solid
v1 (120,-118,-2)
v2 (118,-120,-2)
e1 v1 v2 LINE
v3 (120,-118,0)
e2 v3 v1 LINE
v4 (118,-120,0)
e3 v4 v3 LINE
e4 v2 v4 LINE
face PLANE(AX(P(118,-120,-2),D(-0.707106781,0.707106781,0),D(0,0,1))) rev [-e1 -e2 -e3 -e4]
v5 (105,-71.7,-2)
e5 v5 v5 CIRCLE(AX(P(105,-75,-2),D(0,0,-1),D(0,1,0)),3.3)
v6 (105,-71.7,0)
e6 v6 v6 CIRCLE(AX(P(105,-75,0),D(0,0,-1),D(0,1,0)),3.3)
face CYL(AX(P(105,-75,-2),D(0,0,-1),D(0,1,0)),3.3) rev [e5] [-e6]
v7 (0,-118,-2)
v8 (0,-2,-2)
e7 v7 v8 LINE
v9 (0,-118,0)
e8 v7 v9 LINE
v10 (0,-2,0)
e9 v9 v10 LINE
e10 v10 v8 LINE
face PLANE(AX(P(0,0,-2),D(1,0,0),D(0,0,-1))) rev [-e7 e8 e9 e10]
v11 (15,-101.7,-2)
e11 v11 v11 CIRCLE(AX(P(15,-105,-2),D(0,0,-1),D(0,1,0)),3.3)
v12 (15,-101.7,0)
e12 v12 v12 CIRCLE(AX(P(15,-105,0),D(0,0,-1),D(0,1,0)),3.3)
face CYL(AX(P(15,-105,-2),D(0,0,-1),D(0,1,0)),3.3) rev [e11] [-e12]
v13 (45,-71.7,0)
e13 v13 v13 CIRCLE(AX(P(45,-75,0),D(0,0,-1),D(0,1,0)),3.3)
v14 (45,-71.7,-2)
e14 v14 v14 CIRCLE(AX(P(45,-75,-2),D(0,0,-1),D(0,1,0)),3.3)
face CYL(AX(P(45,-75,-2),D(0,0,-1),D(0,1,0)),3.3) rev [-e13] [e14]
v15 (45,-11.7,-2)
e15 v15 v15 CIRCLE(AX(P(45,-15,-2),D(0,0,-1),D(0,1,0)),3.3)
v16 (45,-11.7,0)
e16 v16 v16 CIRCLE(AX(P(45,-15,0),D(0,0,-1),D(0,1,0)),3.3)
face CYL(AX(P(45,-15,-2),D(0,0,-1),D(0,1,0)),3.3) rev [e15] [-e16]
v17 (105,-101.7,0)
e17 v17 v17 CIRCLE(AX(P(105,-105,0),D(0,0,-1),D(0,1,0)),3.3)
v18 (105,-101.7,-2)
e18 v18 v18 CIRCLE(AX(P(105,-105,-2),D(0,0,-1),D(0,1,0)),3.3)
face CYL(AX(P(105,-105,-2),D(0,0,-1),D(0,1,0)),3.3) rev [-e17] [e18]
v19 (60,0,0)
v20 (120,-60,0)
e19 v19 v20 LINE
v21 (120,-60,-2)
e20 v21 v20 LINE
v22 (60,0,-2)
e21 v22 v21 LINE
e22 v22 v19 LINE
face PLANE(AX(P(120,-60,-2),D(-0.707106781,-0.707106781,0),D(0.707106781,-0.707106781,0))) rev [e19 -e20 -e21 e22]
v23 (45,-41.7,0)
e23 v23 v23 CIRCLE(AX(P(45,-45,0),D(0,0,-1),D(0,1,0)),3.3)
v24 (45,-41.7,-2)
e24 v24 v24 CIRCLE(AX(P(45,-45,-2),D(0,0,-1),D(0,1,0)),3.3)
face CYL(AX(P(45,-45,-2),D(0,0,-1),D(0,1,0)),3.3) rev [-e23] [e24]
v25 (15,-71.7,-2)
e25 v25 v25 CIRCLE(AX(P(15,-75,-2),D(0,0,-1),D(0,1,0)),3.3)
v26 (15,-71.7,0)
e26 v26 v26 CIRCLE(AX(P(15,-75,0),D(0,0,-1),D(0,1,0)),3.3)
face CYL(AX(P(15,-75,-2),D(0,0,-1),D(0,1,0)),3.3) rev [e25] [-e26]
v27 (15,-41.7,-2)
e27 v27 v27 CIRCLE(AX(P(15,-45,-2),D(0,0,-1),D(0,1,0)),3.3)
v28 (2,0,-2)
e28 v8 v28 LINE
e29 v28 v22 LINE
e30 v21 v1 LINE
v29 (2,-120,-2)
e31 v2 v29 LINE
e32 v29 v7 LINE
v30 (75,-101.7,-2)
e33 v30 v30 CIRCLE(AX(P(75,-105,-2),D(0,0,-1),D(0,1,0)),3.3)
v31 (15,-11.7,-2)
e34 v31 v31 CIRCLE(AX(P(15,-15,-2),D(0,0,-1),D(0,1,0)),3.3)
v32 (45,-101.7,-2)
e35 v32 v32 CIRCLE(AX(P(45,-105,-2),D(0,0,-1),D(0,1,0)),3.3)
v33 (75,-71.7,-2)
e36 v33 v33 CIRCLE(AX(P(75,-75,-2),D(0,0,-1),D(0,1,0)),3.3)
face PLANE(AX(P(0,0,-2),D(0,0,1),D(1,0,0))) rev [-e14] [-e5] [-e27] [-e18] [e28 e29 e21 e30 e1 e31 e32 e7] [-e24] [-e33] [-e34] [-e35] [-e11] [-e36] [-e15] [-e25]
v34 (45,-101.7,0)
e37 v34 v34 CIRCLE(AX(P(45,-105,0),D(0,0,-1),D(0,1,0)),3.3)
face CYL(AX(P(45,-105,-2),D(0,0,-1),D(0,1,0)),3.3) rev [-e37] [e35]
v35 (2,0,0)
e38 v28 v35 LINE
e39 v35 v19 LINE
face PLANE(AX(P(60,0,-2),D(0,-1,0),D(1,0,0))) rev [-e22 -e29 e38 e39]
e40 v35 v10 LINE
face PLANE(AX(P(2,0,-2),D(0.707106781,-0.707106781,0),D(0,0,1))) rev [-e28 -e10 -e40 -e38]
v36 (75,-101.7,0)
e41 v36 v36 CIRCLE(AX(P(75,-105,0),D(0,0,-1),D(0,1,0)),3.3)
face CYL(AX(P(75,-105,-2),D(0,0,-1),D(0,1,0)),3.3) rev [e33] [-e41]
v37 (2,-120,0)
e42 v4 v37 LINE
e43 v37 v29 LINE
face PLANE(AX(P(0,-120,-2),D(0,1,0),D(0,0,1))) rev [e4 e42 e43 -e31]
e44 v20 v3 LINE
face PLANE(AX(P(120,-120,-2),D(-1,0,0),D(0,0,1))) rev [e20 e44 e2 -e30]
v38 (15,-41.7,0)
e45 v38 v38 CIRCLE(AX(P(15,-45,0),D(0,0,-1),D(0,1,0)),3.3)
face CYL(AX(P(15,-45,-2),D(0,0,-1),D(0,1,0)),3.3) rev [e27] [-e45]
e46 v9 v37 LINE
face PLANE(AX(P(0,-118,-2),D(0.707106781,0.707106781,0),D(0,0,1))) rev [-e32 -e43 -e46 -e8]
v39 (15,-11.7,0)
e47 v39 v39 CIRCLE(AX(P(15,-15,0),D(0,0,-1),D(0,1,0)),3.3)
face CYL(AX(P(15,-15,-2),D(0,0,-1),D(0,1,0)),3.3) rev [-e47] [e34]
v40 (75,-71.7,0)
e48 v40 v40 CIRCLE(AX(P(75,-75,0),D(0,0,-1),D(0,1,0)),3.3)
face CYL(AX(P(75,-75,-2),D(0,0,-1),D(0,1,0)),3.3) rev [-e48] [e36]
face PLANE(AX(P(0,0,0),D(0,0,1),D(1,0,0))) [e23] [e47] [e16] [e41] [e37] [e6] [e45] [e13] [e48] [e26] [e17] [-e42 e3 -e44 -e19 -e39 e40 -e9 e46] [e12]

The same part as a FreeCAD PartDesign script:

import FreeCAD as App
import Part
import Sketcher


def edges_at(feature, points):
    """Names of the edges that pass closest to the given points."""
    edges = feature.Shape.Edges
    near = lambda p: min(range(len(edges)), key=lambda i: edges[i].distToShape(Part.Vertex(*p))[0])
    return sorted({f"Edge{near(p) + 1}" for p in points})

doc = App.newDocument("Part")
body = doc.addObject("PartDesign::Body", "Body")

sketch1 = body.newObject("Sketcher::SketchObject", "Sketch")
sketch1.AttachmentSupport = (doc.getObject("XY_Plane"), [""])
sketch1.MapMode = "FlatFace"
sketch1.addGeometry([
    Part.LineSegment(App.Vector(0, -120, 0), App.Vector(0, 0, 0)),
    Part.LineSegment(App.Vector(0, 0, 0), App.Vector(60, 0, 0)),
    Part.LineSegment(App.Vector(60, 0, 0), App.Vector(120, -60, 0)),
    Part.LineSegment(App.Vector(120, -60, 0), App.Vector(120, -120, 0)),
    Part.LineSegment(App.Vector(120, -120, 0), App.Vector(0, -120, 0)),
], False)
sketch1.addConstraint([
    Sketcher.Constraint("Coincident", 0, 2, 1, 1),
    Sketcher.Constraint("Coincident", 1, 2, 2, 1),
    Sketcher.Constraint("Coincident", 2, 2, 3, 1),
    Sketcher.Constraint("Coincident", 3, 2, 4, 1),
    Sketcher.Constraint("Coincident", 4, 2, 0, 1),
    Sketcher.Constraint("Vertical", 0),
    Sketcher.Constraint("Horizontal", 1),
    Sketcher.Constraint("Vertical", 3),
    Sketcher.Constraint("Horizontal", 4),
    Sketcher.Constraint("Coincident", 0, 2, -1, 1),
    Sketcher.Constraint("Equal", 4, 0),
    Sketcher.Constraint("Equal", 1, 3),
    Sketcher.Constraint("DistanceX", 1, 1, 1, 2, 60.0),
    Sketcher.Constraint("DistanceX", 4, 2, 4, 1, 120.0),
])
pad1 = body.newObject("PartDesign::Pad", "Pad")
pad1.Profile = sketch1
pad1.Length = 2
pad1.Reversed = True

sketch2 = body.newObject("Sketcher::SketchObject", "Sketch001")
sketch2.AttachmentSupport = (doc.getObject("XY_Plane"), [""])
sketch2.MapMode = "FlatFace"
sketch2.AttachmentOffset = App.Placement(App.Vector(0, 0, -2), App.Rotation())
sketch2.addGeometry([
    Part.Circle(App.Vector(15, -105, 0), App.Vector(0, 0, 1), 3.3),
    Part.Circle(App.Vector(15, -75, 0), App.Vector(0, 0, 1), 3.3),
    Part.Circle(App.Vector(15, -45, 0), App.Vector(0, 0, 1), 3.3),
    Part.Circle(App.Vector(15, -15, 0), App.Vector(0, 0, 1), 3.3),
    Part.Circle(App.Vector(45, -105, 0), App.Vector(0, 0, 1), 3.3),
    Part.Circle(App.Vector(45, -75, 0), App.Vector(0, 0, 1), 3.3),
    Part.Circle(App.Vector(45, -45, 0), App.Vector(0, 0, 1), 3.3),
    Part.Circle(App.Vector(45, -15, 0), App.Vector(0, 0, 1), 3.3),
    Part.Circle(App.Vector(75, -105, 0), App.Vector(0, 0, 1), 3.3),
    Part.Circle(App.Vector(75, -75, 0), App.Vector(0, 0, 1), 3.3),
    Part.Circle(App.Vector(105, -105, 0), App.Vector(0, 0, 1), 3.3),
    Part.Circle(App.Vector(105, -75, 0), App.Vector(0, 0, 1), 3.3),
], False)
sketch2.addConstraint([
    Sketcher.Constraint("Equal", 0, 1),
    Sketcher.Constraint("Equal", 1, 2),
    Sketcher.Constraint("Equal", 2, 3),
    Sketcher.Constraint("Equal", 3, 4),
    Sketcher.Constraint("Equal", 4, 5),
    Sketcher.Constraint("Equal", 5, 6),
    Sketcher.Constraint("Equal", 6, 7),
    Sketcher.Constraint("Equal", 7, 8),
    Sketcher.Constraint("Equal", 8, 9),
    Sketcher.Constraint("Equal", 9, 10),
    Sketcher.Constraint("Equal", 10, 11),
    Sketcher.Constraint("Horizontal", 0, 3, 4, 3),
    Sketcher.Constraint("Horizontal", 1, 3, 5, 3),
    Sketcher.Constraint("Horizontal", 2, 3, 6, 3),
    Sketcher.Constraint("Horizontal", 3, 3, 7, 3),
    Sketcher.Constraint("Horizontal", 4, 3, 8, 3),
    Sketcher.Constraint("Horizontal", 5, 3, 9, 3),
    Sketcher.Constraint("Horizontal", 8, 3, 10, 3),
    Sketcher.Constraint("Horizontal", 9, 3, 11, 3),
    Sketcher.Constraint("Vertical", 0, 3, 1, 3),
    Sketcher.Constraint("Vertical", 1, 3, 2, 3),
    Sketcher.Constraint("Vertical", 2, 3, 3, 3),
    Sketcher.Constraint("Vertical", 4, 3, 5, 3),
    Sketcher.Constraint("Vertical", 5, 3, 6, 3),
    Sketcher.Constraint("Vertical", 6, 3, 7, 3),
    Sketcher.Constraint("Vertical", 8, 3, 9, 3),
    Sketcher.Constraint("Vertical", 10, 3, 11, 3),
    Sketcher.Constraint("Diameter", 0, 6.6),
    Sketcher.Constraint("DistanceX", -1, 1, 0, 3, 15.0),
    Sketcher.Constraint("DistanceY", 0, 3, -1, 1, 105.0),
    Sketcher.Constraint("DistanceY", 1, 3, -1, 1, 75.0),
    Sketcher.Constraint("DistanceY", 2, 3, -1, 1, 45.0),
    Sketcher.Constraint("DistanceY", 3, 3, -1, 1, 15.0),
    Sketcher.Constraint("DistanceX", -1, 1, 4, 3, 45.0),
    Sketcher.Constraint("DistanceX", -1, 1, 8, 3, 75.0),
    Sketcher.Constraint("DistanceX", -1, 1, 10, 3, 105.0),
])
doc.recompute()
hole = body.newObject("PartDesign::Hole", "Hole")
hole.Profile = sketch2
hole.ThreadType = "None"
hole.Diameter = 6.6
hole.DepthType = "ThroughAll"
hole.Reversed = True
doc.recompute()

chamfer = body.newObject("PartDesign::Chamfer", "Chamfer")
chamfer.Base = (hole, edges_at(hole, [(0, 0, -1), (0, -120, -1), (120, -120, -1)]))
chamfer.Size = 2

doc.recompute()
